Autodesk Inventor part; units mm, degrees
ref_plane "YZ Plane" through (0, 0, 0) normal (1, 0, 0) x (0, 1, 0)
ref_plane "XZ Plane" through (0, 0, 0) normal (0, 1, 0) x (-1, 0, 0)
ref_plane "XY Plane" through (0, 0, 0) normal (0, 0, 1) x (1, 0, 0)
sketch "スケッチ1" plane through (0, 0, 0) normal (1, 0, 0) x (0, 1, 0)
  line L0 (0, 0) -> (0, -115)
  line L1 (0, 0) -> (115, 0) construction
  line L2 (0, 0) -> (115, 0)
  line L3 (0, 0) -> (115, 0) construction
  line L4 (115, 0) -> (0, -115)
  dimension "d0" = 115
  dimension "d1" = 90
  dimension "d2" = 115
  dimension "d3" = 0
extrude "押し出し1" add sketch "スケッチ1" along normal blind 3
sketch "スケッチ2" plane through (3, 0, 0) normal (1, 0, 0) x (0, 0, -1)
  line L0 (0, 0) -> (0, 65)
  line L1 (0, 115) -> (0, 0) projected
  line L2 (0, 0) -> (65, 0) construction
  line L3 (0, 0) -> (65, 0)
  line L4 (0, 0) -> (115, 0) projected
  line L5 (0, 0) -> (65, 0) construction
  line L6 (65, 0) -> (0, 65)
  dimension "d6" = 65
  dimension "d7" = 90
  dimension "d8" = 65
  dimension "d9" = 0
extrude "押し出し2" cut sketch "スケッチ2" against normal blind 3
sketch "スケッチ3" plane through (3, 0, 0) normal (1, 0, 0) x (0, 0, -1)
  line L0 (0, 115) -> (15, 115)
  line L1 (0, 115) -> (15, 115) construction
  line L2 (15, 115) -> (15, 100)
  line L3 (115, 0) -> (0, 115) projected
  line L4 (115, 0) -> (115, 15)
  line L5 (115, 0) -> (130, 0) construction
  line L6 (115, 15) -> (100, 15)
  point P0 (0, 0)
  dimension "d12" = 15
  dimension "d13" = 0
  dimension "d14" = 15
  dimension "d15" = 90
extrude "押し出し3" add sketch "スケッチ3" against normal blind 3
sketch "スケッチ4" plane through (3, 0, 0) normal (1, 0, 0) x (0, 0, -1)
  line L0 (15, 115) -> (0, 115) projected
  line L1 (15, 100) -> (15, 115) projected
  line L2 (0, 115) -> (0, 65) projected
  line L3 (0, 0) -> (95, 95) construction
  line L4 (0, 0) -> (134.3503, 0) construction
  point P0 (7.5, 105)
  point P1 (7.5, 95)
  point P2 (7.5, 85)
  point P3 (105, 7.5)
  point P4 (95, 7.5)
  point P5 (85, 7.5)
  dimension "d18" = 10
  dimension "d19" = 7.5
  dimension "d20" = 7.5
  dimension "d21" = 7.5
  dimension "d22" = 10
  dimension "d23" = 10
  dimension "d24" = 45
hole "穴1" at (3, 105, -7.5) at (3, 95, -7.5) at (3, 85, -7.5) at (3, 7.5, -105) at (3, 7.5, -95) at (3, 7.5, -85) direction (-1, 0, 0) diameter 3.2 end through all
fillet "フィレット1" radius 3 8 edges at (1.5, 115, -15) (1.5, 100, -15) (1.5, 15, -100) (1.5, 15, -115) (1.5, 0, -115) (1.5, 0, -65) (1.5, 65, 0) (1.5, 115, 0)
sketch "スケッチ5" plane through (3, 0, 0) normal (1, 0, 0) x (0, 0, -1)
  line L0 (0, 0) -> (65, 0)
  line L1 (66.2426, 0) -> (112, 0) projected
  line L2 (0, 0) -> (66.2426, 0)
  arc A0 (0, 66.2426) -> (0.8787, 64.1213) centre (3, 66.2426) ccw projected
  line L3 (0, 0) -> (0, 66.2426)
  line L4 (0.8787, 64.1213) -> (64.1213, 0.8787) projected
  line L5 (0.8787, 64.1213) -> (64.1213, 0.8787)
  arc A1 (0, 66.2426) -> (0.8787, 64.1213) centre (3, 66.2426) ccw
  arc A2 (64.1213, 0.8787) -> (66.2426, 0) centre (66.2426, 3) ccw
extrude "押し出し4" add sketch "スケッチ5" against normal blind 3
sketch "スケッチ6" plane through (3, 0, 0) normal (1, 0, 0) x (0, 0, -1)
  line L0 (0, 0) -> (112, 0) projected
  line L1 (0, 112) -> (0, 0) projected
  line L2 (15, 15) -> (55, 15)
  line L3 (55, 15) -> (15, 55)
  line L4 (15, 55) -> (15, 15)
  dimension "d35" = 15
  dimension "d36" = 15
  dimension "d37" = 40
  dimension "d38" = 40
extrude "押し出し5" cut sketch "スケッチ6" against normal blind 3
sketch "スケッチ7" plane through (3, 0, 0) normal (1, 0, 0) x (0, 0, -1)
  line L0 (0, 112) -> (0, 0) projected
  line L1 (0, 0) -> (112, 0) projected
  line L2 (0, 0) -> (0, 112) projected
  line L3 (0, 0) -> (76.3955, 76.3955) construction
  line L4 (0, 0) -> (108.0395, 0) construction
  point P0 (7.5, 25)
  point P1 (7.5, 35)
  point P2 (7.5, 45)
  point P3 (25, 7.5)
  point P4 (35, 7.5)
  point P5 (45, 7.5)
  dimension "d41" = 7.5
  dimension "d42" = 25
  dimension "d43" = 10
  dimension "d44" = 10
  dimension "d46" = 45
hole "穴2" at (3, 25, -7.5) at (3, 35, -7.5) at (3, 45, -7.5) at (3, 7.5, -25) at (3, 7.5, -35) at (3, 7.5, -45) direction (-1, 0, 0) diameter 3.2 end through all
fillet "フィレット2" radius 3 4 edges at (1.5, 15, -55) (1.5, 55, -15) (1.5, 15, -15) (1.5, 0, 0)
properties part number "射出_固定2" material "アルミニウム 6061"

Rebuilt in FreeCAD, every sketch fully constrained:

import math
import FreeCAD as App
import Part
import Sketcher


def edges_at(feature, points):
    """Names of the edges that pass closest to the given points."""
    edges = feature.Shape.Edges
    near = lambda p: min(range(len(edges)), key=lambda i: edges[i].distToShape(Part.Vertex(*p))[0])
    return sorted({f"Edge{near(p) + 1}" for p in points})

doc = App.newDocument("Part")
params = doc.addObject("Spreadsheet::Sheet", "Params")
for row, (alias, value) in enumerate([
    ("sketch1_width", "115 mm"),
    ("pad1_length", "3 mm"),
    ("sketch2_width", "65 mm"),
    ("pocket1_length", "3 mm"),
    ("sketch3_width", "15 mm"),
    ("pad2_length", "3 mm"),
    ("sketch4_diameter", "3.2 mm"),
    ("hole_diameter", "3.2 mm"),
    ("fillet_radius", "3 mm"),
    ("sketch5_radius", "3 mm"),
    ("pad3_length", "3 mm"),
    ("sketch6_width", "40 mm"),
    ("pocket2_length", "3 mm"),
    ("sketch7_diameter", "3.2 mm"),
    ("hole2_diameter", "3.2 mm"),
    ("fillet2_radius", "3 mm"),
], start=1):
    params.set(f"A{row}", alias)
    params.set(f"B{row}", "=" + value)
    params.setAlias(f"B{row}", alias)

body = doc.addObject("PartDesign::Body", "Body")

sketch1 = body.newObject("Sketcher::SketchObject", "Sketch")
sketch1.AttachmentSupport = (doc.getObject("YZ_Plane"), [""])
sketch1.MapMode = "FlatFace"
sketch1.addGeometry(Part.LineSegment(App.Vector(115, 0, 0), App.Vector(0, 0, 0)), False)
sketch1.addGeometry(Part.LineSegment(App.Vector(0, 0, 0), App.Vector(0, -115, 0)), False)
sketch1.addGeometry(Part.LineSegment(App.Vector(0, -115, 0), App.Vector(115, 0, 0)), False)
sketch1.addConstraint(Sketcher.Constraint("Coincident", 0, 2, 1, 1))
sketch1.addConstraint(Sketcher.Constraint("Coincident", 1, 2, 2, 1))
sketch1.addConstraint(Sketcher.Constraint("Coincident", 2, 2, 0, 1))
sketch1.addConstraint(Sketcher.Constraint("Horizontal", 0))
sketch1.addConstraint(Sketcher.Constraint("Vertical", 1))
sketch1.addConstraint(Sketcher.Constraint("Coincident", 0, 2, -1, 1))
sketch1.addConstraint(Sketcher.Constraint("Equal", 0, 1))
sketch1.addConstraint(Sketcher.Constraint("DistanceX", 0, 2, 0, 1, 115.0))
sketch1.setExpression("Constraints[7]", "Params.sketch1_width")
pad1 = body.newObject("PartDesign::Pad", "Pad")
pad1.Profile = sketch1
pad1.setExpression("Length", "Params.pad1_length")

sketch2 = body.newObject("Sketcher::SketchObject", "Sketch001")
sketch2.AttachmentSupport = (doc.getObject("YZ_Plane"), [""])
sketch2.MapMode = "FlatFace"
sketch2.AttachmentOffset = App.Placement(App.Vector(0, 0, 3), App.Rotation())
sketch2.addGeometry(Part.LineSegment(App.Vector(65, 0, 0), App.Vector(0, 0, 0)), False)
sketch2.addGeometry(Part.LineSegment(App.Vector(0, 0, 0), App.Vector(0, -65, 0)), False)
sketch2.addGeometry(Part.LineSegment(App.Vector(0, -65, 0), App.Vector(65, 0, 0)), False)
sketch2.addConstraint(Sketcher.Constraint("Coincident", 0, 2, 1, 1))
sketch2.addConstraint(Sketcher.Constraint("Coincident", 1, 2, 2, 1))
sketch2.addConstraint(Sketcher.Constraint("Coincident", 2, 2, 0, 1))
sketch2.addConstraint(Sketcher.Constraint("Horizontal", 0))
sketch2.addConstraint(Sketcher.Constraint("Vertical", 1))
sketch2.addConstraint(Sketcher.Constraint("Coincident", 0, 2, -1, 1))
sketch2.addConstraint(Sketcher.Constraint("Equal", 0, 1))
sketch2.addConstraint(Sketcher.Constraint("DistanceX", 0, 2, 0, 1, 65.0))
sketch2.setExpression("Constraints[7]", "Params.sketch2_width")
pocket1 = body.newObject("PartDesign::Pocket", "Pocket")
pocket1.Profile = sketch2
pocket1.setExpression("Length", "Params.pocket1_length")

sketch3 = body.newObject("Sketcher::SketchObject", "Sketch002")
sketch3.AttachmentSupport = (doc.getObject("YZ_Plane"), [""])
sketch3.MapMode = "FlatFace"
sketch3.AttachmentOffset = App.Placement(App.Vector(0, 0, 3), App.Rotation())
sketch3.addGeometry(Part.LineSegment(App.Vector(15, -115, 0), App.Vector(15, -100, 0)), False)
sketch3.addGeometry(Part.LineSegment(App.Vector(15, -100, 0), App.Vector(0, -115, 0)), False)
sketch3.addGeometry(Part.LineSegment(App.Vector(0, -115, 0), App.Vector(15, -115, 0)), False)
sketch3.addGeometry(Part.LineSegment(App.Vector(115, -15, 0), App.Vector(115, 0, 0)), False)
sketch3.addGeometry(Part.LineSegment(App.Vector(115, 0, 0), App.Vector(100, -15, 0)), False)
sketch3.addGeometry(Part.LineSegment(App.Vector(100, -15, 0), App.Vector(115, -15, 0)), False)
sketch3.addConstraint(Sketcher.Constraint("Coincident", 0, 2, 1, 1))
sketch3.addConstraint(Sketcher.Constraint("Coincident", 1, 2, 2, 1))
sketch3.addConstraint(Sketcher.Constraint("Coincident", 2, 2, 0, 1))
sketch3.addConstraint(Sketcher.Constraint("Coincident", 3, 2, 4, 1))
sketch3.addConstraint(Sketcher.Constraint("Coincident", 4, 2, 5, 1))
sketch3.addConstraint(Sketcher.Constraint("Coincident", 5, 2, 3, 1))
sketch3.addConstraint(Sketcher.Constraint("Vertical", 0))
sketch3.addConstraint(Sketcher.Constraint("Horizontal", 2))
sketch3.addConstraint(Sketcher.Constraint("Vertical", 3))
sketch3.addConstraint(Sketcher.Constraint("Horizontal", 5))
sketch3.addConstraint(Sketcher.Constraint("PointOnObject", 1, 2, -2))
sketch3.addConstraint(Sketcher.Constraint("PointOnObject", 3, 2, -1))
sketch3.addConstraint(Sketcher.Constraint("Parallel", 1, 4))
sketch3.addConstraint(Sketcher.Constraint("Equal", 2, 5))
sketch3.addConstraint(Sketcher.Constraint("Equal", 5, 0))
sketch3.addConstraint(Sketcher.Constraint("DistanceX", 2, 1, 2, 2, 15.0))
sketch3.addConstraint(Sketcher.Constraint("DistanceY", 0, 2, -1, 1, 100.0))
sketch3.addConstraint(Sketcher.Constraint("DistanceX", -1, 1, 3, 2, 115.0))
sketch3.setExpression("Constraints[15]", "Params.sketch3_width")
pad2 = body.newObject("PartDesign::Pad", "Pad001")
pad2.Profile = sketch3
pad2.setExpression("Length", "Params.pad2_length")
pad2.Reversed = True

sketch4 = body.newObject("Sketcher::SketchObject", "Sketch003")
sketch4.AttachmentSupport = (doc.getObject("YZ_Plane"), [""])
sketch4.MapMode = "FlatFace"
sketch4.AttachmentOffset = App.Placement(App.Vector(0, 0, 3), App.Rotation())
sketch4.addGeometry(Part.Circle(App.Vector(105, -7.5, 0), App.Vector(0, 0, 1), 1.6), False)
sketch4.addGeometry(Part.Circle(App.Vector(95, -7.5, 0), App.Vector(0, 0, 1), 1.6), False)
sketch4.addGeometry(Part.Circle(App.Vector(85, -7.5, 0), App.Vector(0, 0, 1), 1.6), False)
sketch4.addGeometry(Part.Circle(App.Vector(7.5, -105, 0), App.Vector(0, 0, 1), 1.6), False)
sketch4.addGeometry(Part.Circle(App.Vector(7.5, -95, 0), App.Vector(0, 0, 1), 1.6), False)
sketch4.addGeometry(Part.Circle(App.Vector(7.5, -85, 0), App.Vector(0, 0, 1), 1.6), False)
sketch4.addConstraint(Sketcher.Constraint("Equal", 0, 1))
sketch4.addConstraint(Sketcher.Constraint("Equal", 1, 2))
sketch4.addConstraint(Sketcher.Constraint("Equal", 2, 3))
sketch4.addConstraint(Sketcher.Constraint("Equal", 3, 4))
sketch4.addConstraint(Sketcher.Constraint("Equal", 4, 5))
sketch4.addConstraint(Sketcher.Constraint("Horizontal", 0, 3, 1, 3))
sketch4.addConstraint(Sketcher.Constraint("Horizontal", 1, 3, 2, 3))
sketch4.addConstraint(Sketcher.Constraint("Vertical", 3, 3, 4, 3))
sketch4.addConstraint(Sketcher.Constraint("Vertical", 4, 3, 5, 3))
sketch4.addConstraint(Sketcher.Constraint("Diameter", 0, 3.2))
sketch4.addConstraint(Sketcher.Constraint("DistanceX", -1, 1, 0, 3, 105.0))
sketch4.addConstraint(Sketcher.Constraint("DistanceX", -1, 1, 1, 3, 95.0))
sketch4.addConstraint(Sketcher.Constraint("DistanceX", -1, 1, 2, 3, 85.0))
sketch4.addConstraint(Sketcher.Constraint("DistanceY", 3, 3, -1, 1, 105.0))
sketch4.addConstraint(Sketcher.Constraint("DistanceY", 4, 3, -1, 1, 95.0))
sketch4.addConstraint(Sketcher.Constraint("DistanceY", 5, 3, -1, 1, 85.0))
sketch4.addConstraint(Sketcher.Constraint("DistanceY", 0, 3, -1, 1, 7.5))
sketch4.addConstraint(Sketcher.Constraint("DistanceX", -1, 1, 3, 3, 7.5))
sketch4.setExpression("Constraints[9]", "Params.sketch4_diameter")
doc.recompute()
hole = body.newObject("PartDesign::Hole", "Hole")
hole.Profile = sketch4
hole.ThreadType = "None"
hole.setExpression("Diameter", "Params.hole_diameter")
hole.DepthType = "ThroughAll"
doc.recompute()

fillet = body.newObject("PartDesign::Fillet", "Fillet")
fillet.Base = (hole, edges_at(hole, [
    (1.5, 115, -15),
    (1.5, 100, -15),
    (1.5, 15, -100),
    (1.5, 15, -115),
    (1.5, 0, -115),
    (1.5, 0, -65),
    (1.5, 65, 0),
    (1.5, 115, 0),
]))
fillet.setExpression("Radius", "Params.fillet_radius")

sketch5 = body.newObject("Sketcher::SketchObject", "Sketch004")
sketch5.AttachmentSupport = (doc.getObject("YZ_Plane"), [""])
sketch5.MapMode = "FlatFace"
sketch5.AttachmentOffset = App.Placement(App.Vector(0, 0, 3), App.Rotation())
sketch5.addGeometry(Part.LineSegment(App.Vector(66.2, 0, 0), App.Vector(0, 0, 0)), False)
sketch5.addGeometry(Part.LineSegment(App.Vector(0, 0, 0), App.Vector(0, -66.2, 0)), False)
sketch5.addGeometry(Part.ArcOfCircle(Part.Circle(App.Vector(3, -66.2, 0), App.Vector(0, 0, 1), 3), math.radians(135), math.radians(180)), False)
sketch5.addGeometry(Part.LineSegment(App.Vector(0.9, -64.1, 0), App.Vector(64.1, -0.9, 0)), False)
sketch5.addGeometry(Part.ArcOfCircle(Part.Circle(App.Vector(66.2, -3, 0), App.Vector(0, 0, 1), 3), math.radians(90), math.radians(135)), False)
sketch5.addConstraint(Sketcher.Constraint("Coincident", 0, 2, 1, 1))
sketch5.addConstraint(Sketcher.Constraint("Tangent", 1, 2, 2, 2))
sketch5.addConstraint(Sketcher.Constraint("Tangent", 2, 1, 3, 1))
sketch5.addConstraint(Sketcher.Constraint("Tangent", 3, 2, 4, 2))
sketch5.addConstraint(Sketcher.Constraint("Tangent", 4, 1, 0, 1))
sketch5.addConstraint(Sketcher.Constraint("Horizontal", 0))
sketch5.addConstraint(Sketcher.Constraint("Vertical", 1))
sketch5.addConstraint(Sketcher.Constraint("Coincident", 0, 2, -1, 1))
sketch5.addConstraint(Sketcher.Constraint("Equal", 2, 4))
sketch5.addConstraint(Sketcher.Constraint("Equal", 0, 1))
sketch5.addConstraint(Sketcher.Constraint("Radius", 2, 3.0))
sketch5.addConstraint(Sketcher.Constraint("DistanceX", 0, 2, 0, 1, 66.2426))
sketch5.setExpression("Constraints[10]", "Params.sketch5_radius")
pad3 = body.newObject("PartDesign::Pad", "Pad002")
pad3.Profile = sketch5
pad3.setExpression("Length", "Params.pad3_length")
pad3.Reversed = True

sketch6 = body.newObject("Sketcher::SketchObject", "Sketch005")
sketch6.AttachmentSupport = (doc.getObject("YZ_Plane"), [""])
sketch6.MapMode = "FlatFace"
sketch6.AttachmentOffset = App.Placement(App.Vector(0, 0, 3), App.Rotation())
sketch6.addGeometry(Part.LineSegment(App.Vector(55, -15, 0), App.Vector(15, -15, 0)), False)
sketch6.addGeometry(Part.LineSegment(App.Vector(15, -15, 0), App.Vector(15, -55, 0)), False)
sketch6.addGeometry(Part.LineSegment(App.Vector(15, -55, 0), App.Vector(55, -15, 0)), False)
sketch6.addConstraint(Sketcher.Constraint("Coincident", 0, 2, 1, 1))
sketch6.addConstraint(Sketcher.Constraint("Coincident", 1, 2, 2, 1))
sketch6.addConstraint(Sketcher.Constraint("Coincident", 2, 2, 0, 1))
sketch6.addConstraint(Sketcher.Constraint("Horizontal", 0))
sketch6.addConstraint(Sketcher.Constraint("Vertical", 1))
sketch6.addConstraint(Sketcher.Constraint("Equal", 0, 1))
sketch6.addConstraint(Sketcher.Constraint("DistanceX", 0, 2, 0, 1, 40.0))
sketch6.addConstraint(Sketcher.Constraint("DistanceX", -1, 1, 0, 2, 15.0))
sketch6.addConstraint(Sketcher.Constraint("DistanceY", 0, 2, -1, 1, 15.0))
sketch6.setExpression("Constraints[6]", "Params.sketch6_width")
pocket2 = body.newObject("PartDesign::Pocket", "Pocket001")
pocket2.Profile = sketch6
pocket2.setExpression("Length", "Params.pocket2_length")

sketch7 = body.newObject("Sketcher::SketchObject", "Sketch006")
sketch7.AttachmentSupport = (doc.getObject("YZ_Plane"), [""])
sketch7.MapMode = "FlatFace"
sketch7.AttachmentOffset = App.Placement(App.Vector(0, 0, 3), App.Rotation())
sketch7.addGeometry(Part.Circle(App.Vector(25, -7.5, 0), App.Vector(0, 0, 1), 1.6), False)
sketch7.addGeometry(Part.Circle(App.Vector(35, -7.5, 0), App.Vector(0, 0, 1), 1.6), False)
sketch7.addGeometry(Part.Circle(App.Vector(45, -7.5, 0), App.Vector(0, 0, 1), 1.6), False)
sketch7.addGeometry(Part.Circle(App.Vector(7.5, -25, 0), App.Vector(0, 0, 1), 1.6), False)
sketch7.addGeometry(Part.Circle(App.Vector(7.5, -35, 0), App.Vector(0, 0, 1), 1.6), False)
sketch7.addGeometry(Part.Circle(App.Vector(7.5, -45, 0), App.Vector(0, 0, 1), 1.6), False)
sketch7.addConstraint(Sketcher.Constraint("Equal", 0, 1))
sketch7.addConstraint(Sketcher.Constraint("Equal", 1, 2))
sketch7.addConstraint(Sketcher.Constraint("Equal", 2, 3))
sketch7.addConstraint(Sketcher.Constraint("Equal", 3, 4))
sketch7.addConstraint(Sketcher.Constraint("Equal", 4, 5))
sketch7.addConstraint(Sketcher.Constraint("Horizontal", 0, 3, 1, 3))
sketch7.addConstraint(Sketcher.Constraint("Horizontal", 1, 3, 2, 3))
sketch7.addConstraint(Sketcher.Constraint("Vertical", 3, 3, 4, 3))
sketch7.addConstraint(Sketcher.Constraint("Vertical", 4, 3, 5, 3))
sketch7.addConstraint(Sketcher.Constraint("Diameter", 0, 3.2))
sketch7.addConstraint(Sketcher.Constraint("DistanceX", -1, 1, 0, 3, 25.0))
sketch7.addConstraint(Sketcher.Constraint("DistanceX", -1, 1, 1, 3, 35.0))
sketch7.addConstraint(Sketcher.Constraint("DistanceX", -1, 1, 2, 3, 45.0))
sketch7.addConstraint(Sketcher.Constraint("DistanceY", 3, 3, -1, 1, 25.0))
sketch7.addConstraint(Sketcher.Constraint("DistanceY", 4, 3, -1, 1, 35.0))
sketch7.addConstraint(Sketcher.Constraint("DistanceY", 5, 3, -1, 1, 45.0))
sketch7.addConstraint(Sketcher.Constraint("DistanceY", 0, 3, -1, 1, 7.5))
sketch7.addConstraint(Sketcher.Constraint("DistanceX", -1, 1, 3, 3, 7.5))
sketch7.setExpression("Constraints[9]", "Params.sketch7_diameter")
doc.recompute()
hole2 = body.newObject("PartDesign::Hole", "Hole001")
hole2.Profile = sketch7
hole2.ThreadType = "None"
hole2.setExpression("Diameter", "Params.hole2_diameter")
hole2.DepthType = "ThroughAll"
doc.recompute()

fillet2 = body.newObject("PartDesign::Fillet", "Fillet001")
fillet2.Base = (hole2, edges_at(hole2, [
    (1.5, 15, -55),
    (1.5, 55, -15),
    (1.5, 15, -15),
    (1.5, 0, 0),
]))
fillet2.setExpression("Radius", "Params.fillet2_radius")

doc.recompute()
